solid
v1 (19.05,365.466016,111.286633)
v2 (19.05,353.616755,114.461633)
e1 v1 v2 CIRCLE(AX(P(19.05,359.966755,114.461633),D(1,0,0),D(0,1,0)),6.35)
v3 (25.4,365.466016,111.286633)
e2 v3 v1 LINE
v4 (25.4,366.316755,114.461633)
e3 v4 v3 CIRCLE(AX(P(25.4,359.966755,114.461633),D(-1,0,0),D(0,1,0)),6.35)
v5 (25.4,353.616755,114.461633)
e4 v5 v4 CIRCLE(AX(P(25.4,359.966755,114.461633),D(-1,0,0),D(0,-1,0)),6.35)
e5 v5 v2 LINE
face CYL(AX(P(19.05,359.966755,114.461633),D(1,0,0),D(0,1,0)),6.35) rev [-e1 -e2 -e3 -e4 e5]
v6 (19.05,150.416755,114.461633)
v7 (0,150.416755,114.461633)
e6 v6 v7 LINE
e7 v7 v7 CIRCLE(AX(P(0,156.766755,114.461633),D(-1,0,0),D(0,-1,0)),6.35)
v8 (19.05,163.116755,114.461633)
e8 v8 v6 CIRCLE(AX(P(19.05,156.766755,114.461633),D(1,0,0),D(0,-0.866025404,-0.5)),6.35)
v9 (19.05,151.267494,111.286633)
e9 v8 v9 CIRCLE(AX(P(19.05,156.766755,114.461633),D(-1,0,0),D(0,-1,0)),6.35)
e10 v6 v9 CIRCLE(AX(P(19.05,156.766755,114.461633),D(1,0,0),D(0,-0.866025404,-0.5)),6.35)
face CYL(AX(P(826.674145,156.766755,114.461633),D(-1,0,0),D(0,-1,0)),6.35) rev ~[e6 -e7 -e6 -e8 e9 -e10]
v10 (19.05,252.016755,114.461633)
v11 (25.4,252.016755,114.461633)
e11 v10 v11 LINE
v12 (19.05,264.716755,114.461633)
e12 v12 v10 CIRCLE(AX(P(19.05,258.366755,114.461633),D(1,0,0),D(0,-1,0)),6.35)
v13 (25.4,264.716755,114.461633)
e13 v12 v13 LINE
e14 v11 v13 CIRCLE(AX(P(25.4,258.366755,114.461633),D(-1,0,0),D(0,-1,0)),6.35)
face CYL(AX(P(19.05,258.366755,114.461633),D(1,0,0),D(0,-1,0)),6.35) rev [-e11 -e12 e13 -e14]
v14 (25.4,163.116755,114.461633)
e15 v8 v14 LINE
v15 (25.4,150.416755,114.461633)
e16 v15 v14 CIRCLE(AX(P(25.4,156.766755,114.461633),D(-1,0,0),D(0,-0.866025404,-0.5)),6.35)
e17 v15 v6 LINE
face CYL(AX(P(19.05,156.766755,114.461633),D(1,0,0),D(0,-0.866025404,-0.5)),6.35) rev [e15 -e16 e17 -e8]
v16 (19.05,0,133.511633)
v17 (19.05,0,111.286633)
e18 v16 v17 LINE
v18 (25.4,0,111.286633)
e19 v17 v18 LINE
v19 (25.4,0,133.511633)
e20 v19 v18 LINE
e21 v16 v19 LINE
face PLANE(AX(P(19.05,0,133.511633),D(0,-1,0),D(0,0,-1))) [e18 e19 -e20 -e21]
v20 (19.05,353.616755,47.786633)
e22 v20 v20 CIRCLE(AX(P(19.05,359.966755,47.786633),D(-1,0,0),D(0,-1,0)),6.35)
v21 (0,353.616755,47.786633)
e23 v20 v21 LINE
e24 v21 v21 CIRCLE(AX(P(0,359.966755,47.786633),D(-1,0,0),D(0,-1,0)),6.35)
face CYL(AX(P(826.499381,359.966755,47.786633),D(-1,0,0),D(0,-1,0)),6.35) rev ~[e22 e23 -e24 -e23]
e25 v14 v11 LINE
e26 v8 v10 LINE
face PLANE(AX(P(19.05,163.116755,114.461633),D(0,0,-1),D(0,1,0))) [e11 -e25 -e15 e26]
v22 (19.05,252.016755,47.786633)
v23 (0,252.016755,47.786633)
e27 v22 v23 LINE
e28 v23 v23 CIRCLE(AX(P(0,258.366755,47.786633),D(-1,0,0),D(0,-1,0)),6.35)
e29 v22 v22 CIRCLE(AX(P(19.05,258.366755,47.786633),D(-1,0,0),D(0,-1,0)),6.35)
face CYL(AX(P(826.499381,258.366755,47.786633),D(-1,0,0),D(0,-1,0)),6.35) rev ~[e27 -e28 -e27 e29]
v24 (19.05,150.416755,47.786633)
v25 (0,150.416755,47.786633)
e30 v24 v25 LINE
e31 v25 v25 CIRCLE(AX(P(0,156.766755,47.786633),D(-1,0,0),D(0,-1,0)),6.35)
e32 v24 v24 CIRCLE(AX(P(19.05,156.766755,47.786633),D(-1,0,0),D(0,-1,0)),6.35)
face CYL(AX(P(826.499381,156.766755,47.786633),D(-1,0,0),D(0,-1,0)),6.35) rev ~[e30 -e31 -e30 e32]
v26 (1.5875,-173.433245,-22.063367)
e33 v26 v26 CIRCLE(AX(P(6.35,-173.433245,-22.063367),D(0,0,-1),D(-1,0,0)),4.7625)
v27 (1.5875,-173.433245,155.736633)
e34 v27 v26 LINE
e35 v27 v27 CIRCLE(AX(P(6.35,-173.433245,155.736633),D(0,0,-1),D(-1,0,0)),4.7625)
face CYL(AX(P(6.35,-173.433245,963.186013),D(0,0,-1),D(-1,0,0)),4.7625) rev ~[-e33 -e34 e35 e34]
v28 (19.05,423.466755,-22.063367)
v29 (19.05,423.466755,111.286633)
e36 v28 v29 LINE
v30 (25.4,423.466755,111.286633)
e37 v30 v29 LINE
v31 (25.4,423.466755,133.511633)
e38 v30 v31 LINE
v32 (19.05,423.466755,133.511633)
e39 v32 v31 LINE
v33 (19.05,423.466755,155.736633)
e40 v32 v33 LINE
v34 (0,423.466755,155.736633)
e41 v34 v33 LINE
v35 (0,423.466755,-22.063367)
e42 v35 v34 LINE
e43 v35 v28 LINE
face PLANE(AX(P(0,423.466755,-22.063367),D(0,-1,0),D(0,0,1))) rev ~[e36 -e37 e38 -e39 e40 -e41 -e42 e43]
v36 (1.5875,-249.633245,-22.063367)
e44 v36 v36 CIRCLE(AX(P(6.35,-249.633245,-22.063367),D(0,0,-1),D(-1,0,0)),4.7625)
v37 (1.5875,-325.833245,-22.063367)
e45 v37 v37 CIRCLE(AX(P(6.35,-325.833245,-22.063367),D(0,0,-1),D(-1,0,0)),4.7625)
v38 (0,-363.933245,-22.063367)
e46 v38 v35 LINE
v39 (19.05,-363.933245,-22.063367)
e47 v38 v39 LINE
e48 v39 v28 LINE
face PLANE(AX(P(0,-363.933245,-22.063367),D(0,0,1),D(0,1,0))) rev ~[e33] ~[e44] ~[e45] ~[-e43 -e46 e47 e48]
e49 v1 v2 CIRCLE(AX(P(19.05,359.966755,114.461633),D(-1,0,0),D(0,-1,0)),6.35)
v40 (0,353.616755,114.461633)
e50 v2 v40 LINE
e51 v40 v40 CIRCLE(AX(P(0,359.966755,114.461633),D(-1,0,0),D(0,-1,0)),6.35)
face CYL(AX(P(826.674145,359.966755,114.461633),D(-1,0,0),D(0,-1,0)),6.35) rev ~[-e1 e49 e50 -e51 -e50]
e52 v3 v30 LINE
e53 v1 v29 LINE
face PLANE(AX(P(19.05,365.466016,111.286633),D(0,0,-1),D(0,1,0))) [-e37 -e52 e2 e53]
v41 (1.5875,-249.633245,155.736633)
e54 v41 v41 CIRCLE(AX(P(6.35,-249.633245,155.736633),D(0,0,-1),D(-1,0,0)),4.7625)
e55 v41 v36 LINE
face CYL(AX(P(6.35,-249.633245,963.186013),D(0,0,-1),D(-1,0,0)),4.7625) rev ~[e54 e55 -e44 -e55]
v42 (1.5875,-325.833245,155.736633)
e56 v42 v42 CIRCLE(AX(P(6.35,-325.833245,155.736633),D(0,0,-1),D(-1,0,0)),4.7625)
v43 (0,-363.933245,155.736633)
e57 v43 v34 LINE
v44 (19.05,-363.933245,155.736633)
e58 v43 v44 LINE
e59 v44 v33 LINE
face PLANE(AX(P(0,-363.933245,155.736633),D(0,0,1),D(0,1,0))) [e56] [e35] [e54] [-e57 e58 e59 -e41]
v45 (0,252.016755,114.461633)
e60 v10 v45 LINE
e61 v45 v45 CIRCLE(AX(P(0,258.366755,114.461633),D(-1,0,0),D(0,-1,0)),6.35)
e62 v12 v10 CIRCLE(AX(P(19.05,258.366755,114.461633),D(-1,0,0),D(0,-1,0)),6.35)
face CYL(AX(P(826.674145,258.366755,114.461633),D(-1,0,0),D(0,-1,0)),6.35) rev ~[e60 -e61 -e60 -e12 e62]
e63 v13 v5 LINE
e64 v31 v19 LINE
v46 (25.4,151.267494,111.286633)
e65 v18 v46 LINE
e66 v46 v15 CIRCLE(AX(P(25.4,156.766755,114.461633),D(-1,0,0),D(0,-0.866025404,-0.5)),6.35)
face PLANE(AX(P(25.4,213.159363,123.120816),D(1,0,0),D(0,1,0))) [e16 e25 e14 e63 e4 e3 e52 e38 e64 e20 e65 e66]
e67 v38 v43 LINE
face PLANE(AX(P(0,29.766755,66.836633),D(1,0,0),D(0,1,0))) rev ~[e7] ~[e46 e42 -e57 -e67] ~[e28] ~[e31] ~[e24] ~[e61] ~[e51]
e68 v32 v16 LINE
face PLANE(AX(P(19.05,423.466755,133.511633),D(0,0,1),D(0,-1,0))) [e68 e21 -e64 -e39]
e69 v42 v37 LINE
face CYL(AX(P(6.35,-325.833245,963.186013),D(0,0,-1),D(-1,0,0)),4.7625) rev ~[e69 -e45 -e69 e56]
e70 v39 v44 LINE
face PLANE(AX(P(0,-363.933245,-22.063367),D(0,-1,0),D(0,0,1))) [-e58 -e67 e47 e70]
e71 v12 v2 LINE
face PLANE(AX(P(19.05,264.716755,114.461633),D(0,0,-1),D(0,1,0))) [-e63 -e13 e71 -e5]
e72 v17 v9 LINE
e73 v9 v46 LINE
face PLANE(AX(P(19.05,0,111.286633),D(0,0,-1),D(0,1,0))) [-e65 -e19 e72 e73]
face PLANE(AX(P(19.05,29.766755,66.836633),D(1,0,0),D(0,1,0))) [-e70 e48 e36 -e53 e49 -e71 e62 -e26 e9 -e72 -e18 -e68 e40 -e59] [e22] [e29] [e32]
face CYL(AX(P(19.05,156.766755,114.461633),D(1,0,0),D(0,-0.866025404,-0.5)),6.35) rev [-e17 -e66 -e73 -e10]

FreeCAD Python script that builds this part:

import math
import FreeCAD as App
import Part
import Sketcher
from FreeCAD import Vector
Q = App.Units.Quantity


def add_polygon(sketch, points):
    """Adds a closed chain of lines whose ends are joined by coincident constraints."""
    first, n = sketch.GeometryCount, len(points)
    for a, b in zip(points, points[1:] + points[:1]):
        sketch.addGeometry(Part.LineSegment(App.Vector(*a, 0), App.Vector(*b, 0)), False)
    for i in range(n):
        sketch.addConstraint(Sketcher.Constraint("Coincident", first + i, 2, first + (i + 1) % n, 1))

doc = App.newDocument("Part")
body = doc.addObject("PartDesign::Body", "Body")

# Sketch on YZ plane
sketch1 = body.newObject("Sketcher::SketchObject", "Sketch")
sketch1.AttachmentSupport = (doc.getObject("YZ_Plane"), [""])
sketch1.MapMode = "FlatFace"
add_polygon(sketch1, [(-364, 156), (-364, -22), (423, -22), (423, 156)])  # lines 0-3
sketch1.addConstraint([
    Sketcher.Constraint("Vertical", 0),
    Sketcher.Constraint("Horizontal", 1),
    Sketcher.Constraint("Vertical", 2),
    Sketcher.Constraint("Horizontal", 3),
    Sketcher.Constraint("DistanceX", 1, 1, 1, 2, Q("31 in")),
    Sketcher.Constraint("DistanceY", 0, 2, 0, 1, Q("7 in")),
    Sketcher.Constraint("DistanceX", 0, 2, -1, 1, 363.933245),
    Sketcher.Constraint("DistanceY", 0, 2, -1, 1, 22.063367),
])
pad1 = body.newObject("PartDesign::Pad", "Pad")
pad1.Profile = sketch1
pad1.Length = Q("0.75 in")

# Sketch on YZ plane
sketch2 = body.newObject("Sketcher::SketchObject", "Sketch001")
sketch2.AttachmentSupport = (doc.getObject("YZ_Plane"), [""])
sketch2.MapMode = "FlatFace"
sketch2.AttachmentOffset = App.Placement(Vector(0, 0, 0.75 * 25.4), App.Rotation())
sketch2.addGeometry([
    Part.Circle(Vector(157, 48, 0), Vector(0, 0, 1), 6),
    Part.Circle(Vector(258, 48, 0), Vector(0, 0, 1), 6),
    Part.Circle(Vector(360, 48, 0), Vector(0, 0, 1), 6),
], False)
sketch2.addConstraint([
    Sketcher.Constraint("Equal", 0, 1),
    Sketcher.Constraint("Equal", 1, 2),
    Sketcher.Constraint("Horizontal", 0, 3, 1, 3),
    Sketcher.Constraint("Horizontal", 1, 3, 2, 3),
    Sketcher.Constraint("Diameter", 0, Q("0.5 in")),
    Sketcher.Constraint("DistanceX", 0, 3, 1, 3, Q("4 in")),
    Sketcher.Constraint("DistanceX", 1, 3, 2, 3, Q("4 in")),
    Sketcher.Constraint("DistanceX", -1, 1, 0, 3, 156.766755),
    Sketcher.Constraint("DistanceY", -1, 1, 0, 3, 47.786633),
])
doc.recompute()
hole = body.newObject("PartDesign::Hole", "Hole")
hole.Profile = sketch2
hole.ThreadType = "None"
hole.Diameter = Q("0.5 in")
hole.DepthType = "ThroughAll"

# Sketch on XY plane
sketch3 = body.newObject("Sketcher::SketchObject", "Sketch002")
sketch3.AttachmentSupport = (doc.getObject("XY_Plane"), [""])
sketch3.MapMode = "FlatFace"
sketch3.AttachmentOffset = App.Placement(Vector(0, 0, 155.736633), App.Rotation())
sketch3.addGeometry([
    Part.Circle(Vector(6.3, -173.4, 0), Vector(0, 0, 1), 4.8),
    Part.Circle(Vector(6.3, -249.6, 0), Vector(0, 0, 1), 4.8),
    Part.Circle(Vector(6.3, -325.8, 0), Vector(0, 0, 1), 4.8),
], False)
sketch3.addConstraint([
    Sketcher.Constraint("Equal", 0, 1),
    Sketcher.Constraint("Equal", 1, 2),
    Sketcher.Constraint("Vertical", 0, 3, 1, 3),
    Sketcher.Constraint("Vertical", 1, 3, 2, 3),
    Sketcher.Constraint("Diameter", 0, Q("0.375 in")),
    Sketcher.Constraint("DistanceY", 1, 3, 0, 3, Q("3 in")),
    Sketcher.Constraint("DistanceY", 2, 3, 1, 3, Q("3 in")),
    Sketcher.Constraint("DistanceX", -1, 1, 0, 3, Q("0.25 in")),
    Sketcher.Constraint("DistanceY", 0, 3, -1, 1, 173.433245),
])
doc.recompute()
hole2 = body.newObject("PartDesign::Hole", "Hole001")
hole2.Profile = sketch3
hole2.ThreadType = "None"
hole2.Diameter = Q("0.375 in")
hole2.DepthType = "ThroughAll"

# Sketch on YZ plane
sketch4 = body.newObject("Sketcher::SketchObject", "Sketch003")
sketch4.AttachmentSupport = (doc.getObject("YZ_Plane"), [""])
sketch4.MapMode = "FlatFace"
sketch4.AttachmentOffset = App.Placement(Vector(0, 0, 0.75 * 25.4), App.Rotation())
sketch4.addGeometry([
    Part.LineSegment(Vector(423.5, 111.3, 0), Vector(423.5, 133.5, 0)),  # 0
    Part.LineSegment(Vector(423.5, 133.5, 0), Vector(0, 133.5, 0)),  # 1
    Part.LineSegment(Vector(0, 133.5, 0), Vector(0, 111.3, 0)),  # 2
    Part.LineSegment(Vector(0, 111.3, 0), Vector(151.3, 111.3, 0)),  # 3
    Part.ArcOfCircle(Part.Circle(Vector(156.8, 114.5, 0), Vector(0, 0, 1), 6.3), math.radians(0), math.radians(210)),  # 4
    Part.LineSegment(Vector(163.1, 114.5, 0), Vector(252, 114.5, 0)),  # 5
    Part.ArcOfCircle(Part.Circle(Vector(258.4, 114.5, 0), Vector(0, 0, 1), 6.3), math.radians(0), math.radians(180)),  # 6
    Part.LineSegment(Vector(264.7, 114.5, 0), Vector(353.6, 114.5, 0)),  # 7
    Part.ArcOfCircle(Part.Circle(Vector(360, 114.5, 0), Vector(0, 0, 1), 6.3), math.radians(0), math.radians(180)),  # 8
    Part.ArcOfCircle(Part.Circle(Vector(360, 114.5, 0), Vector(0, 0, 1), 6.4), math.radians(-30), math.radians(0)),  # 9
    Part.LineSegment(Vector(365.5, 111.3, 0), Vector(423.5, 111.3, 0)),  # 10
], False)
sketch4.addConstraint([
    Sketcher.Constraint("Coincident", 0, 2, 1, 1),
    Sketcher.Constraint("Coincident", 1, 2, 2, 1),
    Sketcher.Constraint("Coincident", 2, 2, 3, 1),
    Sketcher.Constraint("Coincident", 3, 2, 4, 2),
    Sketcher.Constraint("Coincident", 4, 1, 5, 1),
    Sketcher.Constraint("Coincident", 5, 2, 6, 2),
    Sketcher.Constraint("Coincident", 6, 1, 7, 1),
    Sketcher.Constraint("Coincident", 7, 2, 8, 2),
    Sketcher.Constraint("Tangent", 8, 1, 9, 2),
    Sketcher.Constraint("Coincident", 9, 1, 10, 1),
    Sketcher.Constraint("Coincident", 10, 2, 0, 1),
    Sketcher.Constraint("Vertical", 0),
    Sketcher.Constraint("Horizontal", 1),
    Sketcher.Constraint("Vertical", 2),
    Sketcher.Constraint("Horizontal", 3),
    Sketcher.Constraint("Horizontal", 5),
    Sketcher.Constraint("Horizontal", 7),
    Sketcher.Constraint("Horizontal", 10),
    Sketcher.Constraint("Equal", 4, 6),
    Sketcher.Constraint("Equal", 6, 8),
    Sketcher.Constraint("Equal", 8, 9),
    Sketcher.Constraint("PointOnObject", 1, 2, -2),
    Sketcher.Constraint("Horizontal", 4, 3, 6, 3),
    Sketcher.Constraint("Horizontal", 6, 3, 8, 3),
    Sketcher.Constraint("Horizontal", 9, 3, 4, 1),
    Sketcher.Constraint("Horizontal", 5, 2, 6, 1),
    Sketcher.Constraint("Horizontal", 7, 2, 8, 1),
    Sketcher.Constraint("Horizontal", 3, 2, 9, 1),
    Sketcher.Constraint("Equal", 5, 7),
    Sketcher.Constraint("Radius", 4, Q("0.25 in")),
    Sketcher.Constraint("DistanceX", 5, 1, 5, 2, Q("3.5 in")),
    Sketcher.Constraint("DistanceX", 8, 3, 0, 2, Q("2.5 in")),
    Sketcher.Constraint("DistanceY", 0, 1, 0, 2, Q("0.875 in")),
    Sketcher.Constraint("DistanceY", 8, 3, 0, 2, Q("0.75 in")),
    Sketcher.Constraint("DistanceX", 1, 2, 1, 1, 423.466755),
    Sketcher.Constraint("DistanceY", -1, 1, 4, 3, 114.461633),
])
pad2 = body.newObject("PartDesign::Pad", "Pad001")
pad2.Profile = sketch4
pad2.Length = Q("0.5 in")
pad2.Midplane = True

# Sketch on YZ plane
sketch5 = body.newObject("Sketcher::SketchObject", "Sketch004")
sketch5.AttachmentSupport = (doc.getObject("YZ_Plane"), [""])
sketch5.MapMode = "FlatFace"
sketch5.AttachmentOffset = App.Placement(Vector(0, 0, 0.75 * 25.4), App.Rotation())
sketch5.addGeometry([
    Part.Circle(Vector(360, 114, 0), Vector(0, 0, 1), 6),
    Part.Circle(Vector(258, 114, 0), Vector(0, 0, 1), 6),
    Part.Circle(Vector(157, 114, 0), Vector(0, 0, 1), 6),
], False)
sketch5.addConstraint([
    Sketcher.Constraint("Equal", 0, 1),
    Sketcher.Constraint("Equal", 1, 2),
    Sketcher.Constraint("Horizontal", 0, 3, 1, 3),
    Sketcher.Constraint("Horizontal", 1, 3, 2, 3),
    Sketcher.Constraint("Diameter", 0, Q("0.5 in")),
    Sketcher.Constraint("DistanceX", 1, 3, 0, 3, Q("4 in")),
    Sketcher.Constraint("DistanceX", 2, 3, 1, 3, Q("4 in")),
    Sketcher.Constraint("DistanceX", -1, 1, 0, 3, 359.966755),
    Sketcher.Constraint("DistanceY", -1, 1, 0, 3, 114.461633),
])
doc.recompute()
hole3 = body.newObject("PartDesign::Hole", "Hole002")
hole3.Profile = sketch5
hole3.ThreadType = "None"
hole3.Diameter = Q("0.5 in")
hole3.DepthType = "ThroughAll"

doc.recompute()
